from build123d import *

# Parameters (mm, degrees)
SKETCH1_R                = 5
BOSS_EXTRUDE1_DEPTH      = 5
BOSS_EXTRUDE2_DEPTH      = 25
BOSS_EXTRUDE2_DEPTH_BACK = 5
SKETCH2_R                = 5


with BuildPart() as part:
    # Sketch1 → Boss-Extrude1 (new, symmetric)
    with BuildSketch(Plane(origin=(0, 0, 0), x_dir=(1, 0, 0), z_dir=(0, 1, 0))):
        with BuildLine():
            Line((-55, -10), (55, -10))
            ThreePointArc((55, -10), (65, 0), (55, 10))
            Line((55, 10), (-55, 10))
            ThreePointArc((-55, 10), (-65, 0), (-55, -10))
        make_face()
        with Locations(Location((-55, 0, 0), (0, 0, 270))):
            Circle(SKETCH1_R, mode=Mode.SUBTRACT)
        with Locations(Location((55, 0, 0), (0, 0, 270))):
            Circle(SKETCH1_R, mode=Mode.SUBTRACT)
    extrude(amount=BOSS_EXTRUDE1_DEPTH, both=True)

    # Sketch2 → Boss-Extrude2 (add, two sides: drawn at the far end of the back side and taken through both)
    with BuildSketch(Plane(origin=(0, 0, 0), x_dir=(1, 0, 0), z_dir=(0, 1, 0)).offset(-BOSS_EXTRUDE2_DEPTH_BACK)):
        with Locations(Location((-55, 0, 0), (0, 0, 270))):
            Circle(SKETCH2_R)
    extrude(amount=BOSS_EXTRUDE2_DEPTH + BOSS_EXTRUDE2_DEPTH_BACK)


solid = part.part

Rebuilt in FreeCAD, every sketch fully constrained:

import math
import FreeCAD as App
import Part
import Sketcher
from FreeCAD import Vector

doc = App.newDocument("Part")
body = doc.addObject("PartDesign::Body", "Body")

# Sketch on XZ plane
sketch1 = body.newObject("Sketcher::SketchObject", "Sketch")
sketch1.AttachmentSupport = (doc.getObject("XZ_Plane"), [""])
sketch1.MapMode = "FlatFace"
sketch1.addGeometry([
    Part.LineSegment(Vector(-55, 10, 0), Vector(55, 10, 0)),  # 0
    Part.ArcOfCircle(Part.Circle(Vector(55, 0, 0), Vector(0, 0, 1), 10), math.radians(-90), math.radians(90)),  # 1
    Part.LineSegment(Vector(55, -10, 0), Vector(-55, -10, 0)),  # 2
    Part.ArcOfCircle(Part.Circle(Vector(-55, 0, 0), Vector(0, 0, 1), 10), math.radians(90), math.radians(270)),  # 3
    Part.Circle(Vector(-55, 0, 0), Vector(0, 0, 1), 5),  # 4
    Part.Circle(Vector(55, 0, 0), Vector(0, 0, 1), 5),  # 5
], False)
sketch1.addConstraint([
    Sketcher.Constraint("Tangent", 0, 2, 1, 2),
    Sketcher.Constraint("Tangent", 1, 1, 2, 1),
    Sketcher.Constraint("Tangent", 2, 2, 3, 2),
    Sketcher.Constraint("Tangent", 3, 1, 0, 1),
    Sketcher.Constraint("Horizontal", 0),
    Sketcher.Constraint("Horizontal", 2),
    Sketcher.Constraint("Coincident", 4, 3, 3, 3),
    Sketcher.Constraint("Coincident", 5, 3, 1, 3),
    Sketcher.Constraint("Equal", 4, 5),
    Sketcher.Constraint("Symmetric", 1, 3, 3, 3, -1, 1),
    Sketcher.Constraint("Diameter", 4, 10.0),
    Sketcher.Constraint("Radius", 1, 10.0),
    Sketcher.Constraint("DistanceX", 0, 1, 0, 2, 110.0),
])
pad1 = body.newObject("PartDesign::Pad", "Pad")
pad1.Profile = sketch1
pad1.Length = 10
pad1.Midplane = True

# Sketch on XZ plane
sketch2 = body.newObject("Sketcher::SketchObject", "Sketch001")
sketch2.AttachmentSupport = (doc.getObject("XZ_Plane"), [""])
sketch2.MapMode = "FlatFace"
sketch2.addGeometry(Part.Circle(Vector(-55, 0, 0), Vector(0, 0, 1), 5), False)
sketch2.addConstraint([
    Sketcher.Constraint("PointOnObject", 0, 3, -1),
    Sketcher.Constraint("Diameter", 0, 10.0),
    Sketcher.Constraint("DistanceX", 0, 3, -1, 1, 55.0),
])
pad2 = body.newObject("PartDesign::Pad", "Pad001")
pad2.Profile = sketch2
pad2.Type = "TwoLengths"
pad2.Length = 25
pad2.Length2 = 5
pad2.Reversed = True

doc.recompute()
